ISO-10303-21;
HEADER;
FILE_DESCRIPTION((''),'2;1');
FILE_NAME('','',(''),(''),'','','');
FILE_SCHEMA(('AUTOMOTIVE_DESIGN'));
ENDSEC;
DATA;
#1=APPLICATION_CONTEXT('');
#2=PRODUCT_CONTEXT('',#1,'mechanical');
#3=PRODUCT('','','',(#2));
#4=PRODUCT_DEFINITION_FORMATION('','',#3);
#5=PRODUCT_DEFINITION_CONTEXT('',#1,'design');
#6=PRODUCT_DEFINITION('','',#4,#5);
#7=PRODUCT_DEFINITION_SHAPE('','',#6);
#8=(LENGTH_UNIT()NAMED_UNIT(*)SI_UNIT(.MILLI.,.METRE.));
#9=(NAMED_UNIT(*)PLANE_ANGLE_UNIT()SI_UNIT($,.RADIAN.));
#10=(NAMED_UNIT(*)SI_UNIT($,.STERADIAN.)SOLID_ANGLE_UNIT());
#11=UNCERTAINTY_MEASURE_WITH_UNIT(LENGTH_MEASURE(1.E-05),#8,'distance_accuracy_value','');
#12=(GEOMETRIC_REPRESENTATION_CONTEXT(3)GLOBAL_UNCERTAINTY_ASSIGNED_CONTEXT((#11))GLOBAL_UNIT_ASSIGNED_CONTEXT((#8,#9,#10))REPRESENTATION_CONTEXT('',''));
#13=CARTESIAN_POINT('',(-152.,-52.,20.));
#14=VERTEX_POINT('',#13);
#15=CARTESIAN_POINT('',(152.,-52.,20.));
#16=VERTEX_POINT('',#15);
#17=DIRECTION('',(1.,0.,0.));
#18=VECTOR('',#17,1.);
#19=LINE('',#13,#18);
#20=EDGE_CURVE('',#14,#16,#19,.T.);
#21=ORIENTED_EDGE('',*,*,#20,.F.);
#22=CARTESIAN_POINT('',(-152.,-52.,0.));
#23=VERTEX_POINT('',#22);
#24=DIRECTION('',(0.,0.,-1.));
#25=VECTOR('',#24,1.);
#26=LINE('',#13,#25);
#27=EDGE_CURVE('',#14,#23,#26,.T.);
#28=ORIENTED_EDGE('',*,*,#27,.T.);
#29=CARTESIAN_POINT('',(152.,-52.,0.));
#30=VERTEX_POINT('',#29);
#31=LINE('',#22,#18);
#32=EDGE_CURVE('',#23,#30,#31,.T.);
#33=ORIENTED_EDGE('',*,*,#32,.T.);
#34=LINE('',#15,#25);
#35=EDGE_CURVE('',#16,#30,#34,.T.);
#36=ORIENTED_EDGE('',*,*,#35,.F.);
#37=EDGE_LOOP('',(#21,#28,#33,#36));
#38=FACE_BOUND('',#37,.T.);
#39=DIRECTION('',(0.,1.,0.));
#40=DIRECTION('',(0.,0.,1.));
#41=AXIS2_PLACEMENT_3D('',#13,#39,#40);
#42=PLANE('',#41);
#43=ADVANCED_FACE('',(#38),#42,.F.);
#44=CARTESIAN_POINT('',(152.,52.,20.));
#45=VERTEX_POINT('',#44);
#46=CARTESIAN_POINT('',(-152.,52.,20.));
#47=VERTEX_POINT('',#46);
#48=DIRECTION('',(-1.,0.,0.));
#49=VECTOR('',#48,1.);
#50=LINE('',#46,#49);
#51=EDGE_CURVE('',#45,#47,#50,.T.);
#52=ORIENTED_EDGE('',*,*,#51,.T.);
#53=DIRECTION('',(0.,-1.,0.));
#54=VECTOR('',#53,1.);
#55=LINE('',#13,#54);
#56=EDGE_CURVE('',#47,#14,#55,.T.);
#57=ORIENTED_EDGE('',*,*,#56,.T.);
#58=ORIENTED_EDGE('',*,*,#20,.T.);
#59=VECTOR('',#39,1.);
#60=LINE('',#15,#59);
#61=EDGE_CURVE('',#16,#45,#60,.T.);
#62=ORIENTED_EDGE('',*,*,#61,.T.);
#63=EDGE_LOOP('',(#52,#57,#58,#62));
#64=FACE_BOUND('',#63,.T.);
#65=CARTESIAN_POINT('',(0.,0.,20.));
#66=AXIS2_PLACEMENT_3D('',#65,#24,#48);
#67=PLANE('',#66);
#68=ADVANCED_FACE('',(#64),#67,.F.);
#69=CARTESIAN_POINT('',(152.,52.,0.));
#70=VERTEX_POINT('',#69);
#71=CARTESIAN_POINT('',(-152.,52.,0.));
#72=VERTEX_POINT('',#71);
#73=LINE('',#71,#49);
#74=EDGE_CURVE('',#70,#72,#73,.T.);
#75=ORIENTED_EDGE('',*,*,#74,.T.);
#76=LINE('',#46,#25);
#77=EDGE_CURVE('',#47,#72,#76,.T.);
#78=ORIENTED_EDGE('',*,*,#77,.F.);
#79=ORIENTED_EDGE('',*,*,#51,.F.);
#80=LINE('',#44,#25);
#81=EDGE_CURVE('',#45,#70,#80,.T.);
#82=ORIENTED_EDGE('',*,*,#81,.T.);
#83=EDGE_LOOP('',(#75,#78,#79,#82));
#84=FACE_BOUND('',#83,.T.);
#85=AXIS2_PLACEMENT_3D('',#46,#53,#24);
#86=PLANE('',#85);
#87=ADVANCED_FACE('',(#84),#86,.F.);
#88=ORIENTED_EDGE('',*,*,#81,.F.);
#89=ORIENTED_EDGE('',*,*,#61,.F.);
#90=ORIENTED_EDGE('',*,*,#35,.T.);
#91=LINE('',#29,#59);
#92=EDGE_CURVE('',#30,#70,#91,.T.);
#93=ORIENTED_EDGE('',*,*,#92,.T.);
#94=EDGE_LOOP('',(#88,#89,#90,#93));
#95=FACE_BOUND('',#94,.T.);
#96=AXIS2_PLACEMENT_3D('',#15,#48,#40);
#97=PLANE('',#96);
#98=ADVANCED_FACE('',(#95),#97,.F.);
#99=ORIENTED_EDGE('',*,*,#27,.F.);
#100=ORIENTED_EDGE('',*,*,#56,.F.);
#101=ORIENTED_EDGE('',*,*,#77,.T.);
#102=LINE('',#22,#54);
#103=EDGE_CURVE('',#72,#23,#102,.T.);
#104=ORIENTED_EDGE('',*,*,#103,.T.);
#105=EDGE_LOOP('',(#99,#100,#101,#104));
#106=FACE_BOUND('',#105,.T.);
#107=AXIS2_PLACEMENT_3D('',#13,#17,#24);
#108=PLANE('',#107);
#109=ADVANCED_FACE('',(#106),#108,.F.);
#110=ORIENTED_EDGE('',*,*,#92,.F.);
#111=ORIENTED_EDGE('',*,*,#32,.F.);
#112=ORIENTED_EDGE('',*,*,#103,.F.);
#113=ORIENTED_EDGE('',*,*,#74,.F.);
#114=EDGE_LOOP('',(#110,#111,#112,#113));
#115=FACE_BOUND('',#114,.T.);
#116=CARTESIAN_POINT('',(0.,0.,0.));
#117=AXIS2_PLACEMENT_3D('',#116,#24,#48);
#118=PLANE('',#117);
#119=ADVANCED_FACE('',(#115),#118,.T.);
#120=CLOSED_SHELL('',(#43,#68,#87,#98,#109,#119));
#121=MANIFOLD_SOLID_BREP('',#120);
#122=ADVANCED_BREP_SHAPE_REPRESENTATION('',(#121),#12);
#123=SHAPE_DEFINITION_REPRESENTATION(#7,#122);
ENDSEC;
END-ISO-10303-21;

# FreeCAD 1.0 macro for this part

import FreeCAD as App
import Part
import Sketcher

doc = App.newDocument("Part")
body = doc.addObject("PartDesign::Body", "Body")

sketch1 = body.newObject("Sketcher::SketchObject", "Sketch")
sketch1.AttachmentSupport = (doc.getObject("XY_Plane"), [""])
sketch1.MapMode = "FlatFace"
sketch1.addGeometry(Part.LineSegment(App.Vector(-152, 52, 0), App.Vector(-152, -52, 0)), False)
sketch1.addGeometry(Part.LineSegment(App.Vector(-152, -52, 0), App.Vector(152, -52, 0)), False)
sketch1.addGeometry(Part.LineSegment(App.Vector(152, -52, 0), App.Vector(152, 52, 0)), False)
sketch1.addGeometry(Part.LineSegment(App.Vector(152, 52, 0), App.Vector(-152, 52, 0)), False)
sketch1.addConstraint(Sketcher.Constraint("Coincident", 0, 2, 1, 1))
sketch1.addConstraint(Sketcher.Constraint("Coincident", 1, 2, 2, 1))
sketch1.addConstraint(Sketcher.Constraint("Coincident", 2, 2, 3, 1))
sketch1.addConstraint(Sketcher.Constraint("Coincident", 3, 2, 0, 1))
sketch1.addConstraint(Sketcher.Constraint("Vertical", 0))
sketch1.addConstraint(Sketcher.Constraint("Horizontal", 1))
sketch1.addConstraint(Sketcher.Constraint("Vertical", 2))
sketch1.addConstraint(Sketcher.Constraint("Horizontal", 3))
sketch1.addConstraint(Sketcher.Constraint("Symmetric", 0, 2, 2, 2, -1, 1))
sketch1.addConstraint(Sketcher.Constraint("DistanceX", 1, 1, 1, 2, 304.0))
sketch1.addConstraint(Sketcher.Constraint("DistanceY", 0, 2, 0, 1, 104.0))
pad1 = body.newObject("PartDesign::Pad", "Pad")
pad1.Profile = sketch1
pad1.Length = 20

doc.recompute()
